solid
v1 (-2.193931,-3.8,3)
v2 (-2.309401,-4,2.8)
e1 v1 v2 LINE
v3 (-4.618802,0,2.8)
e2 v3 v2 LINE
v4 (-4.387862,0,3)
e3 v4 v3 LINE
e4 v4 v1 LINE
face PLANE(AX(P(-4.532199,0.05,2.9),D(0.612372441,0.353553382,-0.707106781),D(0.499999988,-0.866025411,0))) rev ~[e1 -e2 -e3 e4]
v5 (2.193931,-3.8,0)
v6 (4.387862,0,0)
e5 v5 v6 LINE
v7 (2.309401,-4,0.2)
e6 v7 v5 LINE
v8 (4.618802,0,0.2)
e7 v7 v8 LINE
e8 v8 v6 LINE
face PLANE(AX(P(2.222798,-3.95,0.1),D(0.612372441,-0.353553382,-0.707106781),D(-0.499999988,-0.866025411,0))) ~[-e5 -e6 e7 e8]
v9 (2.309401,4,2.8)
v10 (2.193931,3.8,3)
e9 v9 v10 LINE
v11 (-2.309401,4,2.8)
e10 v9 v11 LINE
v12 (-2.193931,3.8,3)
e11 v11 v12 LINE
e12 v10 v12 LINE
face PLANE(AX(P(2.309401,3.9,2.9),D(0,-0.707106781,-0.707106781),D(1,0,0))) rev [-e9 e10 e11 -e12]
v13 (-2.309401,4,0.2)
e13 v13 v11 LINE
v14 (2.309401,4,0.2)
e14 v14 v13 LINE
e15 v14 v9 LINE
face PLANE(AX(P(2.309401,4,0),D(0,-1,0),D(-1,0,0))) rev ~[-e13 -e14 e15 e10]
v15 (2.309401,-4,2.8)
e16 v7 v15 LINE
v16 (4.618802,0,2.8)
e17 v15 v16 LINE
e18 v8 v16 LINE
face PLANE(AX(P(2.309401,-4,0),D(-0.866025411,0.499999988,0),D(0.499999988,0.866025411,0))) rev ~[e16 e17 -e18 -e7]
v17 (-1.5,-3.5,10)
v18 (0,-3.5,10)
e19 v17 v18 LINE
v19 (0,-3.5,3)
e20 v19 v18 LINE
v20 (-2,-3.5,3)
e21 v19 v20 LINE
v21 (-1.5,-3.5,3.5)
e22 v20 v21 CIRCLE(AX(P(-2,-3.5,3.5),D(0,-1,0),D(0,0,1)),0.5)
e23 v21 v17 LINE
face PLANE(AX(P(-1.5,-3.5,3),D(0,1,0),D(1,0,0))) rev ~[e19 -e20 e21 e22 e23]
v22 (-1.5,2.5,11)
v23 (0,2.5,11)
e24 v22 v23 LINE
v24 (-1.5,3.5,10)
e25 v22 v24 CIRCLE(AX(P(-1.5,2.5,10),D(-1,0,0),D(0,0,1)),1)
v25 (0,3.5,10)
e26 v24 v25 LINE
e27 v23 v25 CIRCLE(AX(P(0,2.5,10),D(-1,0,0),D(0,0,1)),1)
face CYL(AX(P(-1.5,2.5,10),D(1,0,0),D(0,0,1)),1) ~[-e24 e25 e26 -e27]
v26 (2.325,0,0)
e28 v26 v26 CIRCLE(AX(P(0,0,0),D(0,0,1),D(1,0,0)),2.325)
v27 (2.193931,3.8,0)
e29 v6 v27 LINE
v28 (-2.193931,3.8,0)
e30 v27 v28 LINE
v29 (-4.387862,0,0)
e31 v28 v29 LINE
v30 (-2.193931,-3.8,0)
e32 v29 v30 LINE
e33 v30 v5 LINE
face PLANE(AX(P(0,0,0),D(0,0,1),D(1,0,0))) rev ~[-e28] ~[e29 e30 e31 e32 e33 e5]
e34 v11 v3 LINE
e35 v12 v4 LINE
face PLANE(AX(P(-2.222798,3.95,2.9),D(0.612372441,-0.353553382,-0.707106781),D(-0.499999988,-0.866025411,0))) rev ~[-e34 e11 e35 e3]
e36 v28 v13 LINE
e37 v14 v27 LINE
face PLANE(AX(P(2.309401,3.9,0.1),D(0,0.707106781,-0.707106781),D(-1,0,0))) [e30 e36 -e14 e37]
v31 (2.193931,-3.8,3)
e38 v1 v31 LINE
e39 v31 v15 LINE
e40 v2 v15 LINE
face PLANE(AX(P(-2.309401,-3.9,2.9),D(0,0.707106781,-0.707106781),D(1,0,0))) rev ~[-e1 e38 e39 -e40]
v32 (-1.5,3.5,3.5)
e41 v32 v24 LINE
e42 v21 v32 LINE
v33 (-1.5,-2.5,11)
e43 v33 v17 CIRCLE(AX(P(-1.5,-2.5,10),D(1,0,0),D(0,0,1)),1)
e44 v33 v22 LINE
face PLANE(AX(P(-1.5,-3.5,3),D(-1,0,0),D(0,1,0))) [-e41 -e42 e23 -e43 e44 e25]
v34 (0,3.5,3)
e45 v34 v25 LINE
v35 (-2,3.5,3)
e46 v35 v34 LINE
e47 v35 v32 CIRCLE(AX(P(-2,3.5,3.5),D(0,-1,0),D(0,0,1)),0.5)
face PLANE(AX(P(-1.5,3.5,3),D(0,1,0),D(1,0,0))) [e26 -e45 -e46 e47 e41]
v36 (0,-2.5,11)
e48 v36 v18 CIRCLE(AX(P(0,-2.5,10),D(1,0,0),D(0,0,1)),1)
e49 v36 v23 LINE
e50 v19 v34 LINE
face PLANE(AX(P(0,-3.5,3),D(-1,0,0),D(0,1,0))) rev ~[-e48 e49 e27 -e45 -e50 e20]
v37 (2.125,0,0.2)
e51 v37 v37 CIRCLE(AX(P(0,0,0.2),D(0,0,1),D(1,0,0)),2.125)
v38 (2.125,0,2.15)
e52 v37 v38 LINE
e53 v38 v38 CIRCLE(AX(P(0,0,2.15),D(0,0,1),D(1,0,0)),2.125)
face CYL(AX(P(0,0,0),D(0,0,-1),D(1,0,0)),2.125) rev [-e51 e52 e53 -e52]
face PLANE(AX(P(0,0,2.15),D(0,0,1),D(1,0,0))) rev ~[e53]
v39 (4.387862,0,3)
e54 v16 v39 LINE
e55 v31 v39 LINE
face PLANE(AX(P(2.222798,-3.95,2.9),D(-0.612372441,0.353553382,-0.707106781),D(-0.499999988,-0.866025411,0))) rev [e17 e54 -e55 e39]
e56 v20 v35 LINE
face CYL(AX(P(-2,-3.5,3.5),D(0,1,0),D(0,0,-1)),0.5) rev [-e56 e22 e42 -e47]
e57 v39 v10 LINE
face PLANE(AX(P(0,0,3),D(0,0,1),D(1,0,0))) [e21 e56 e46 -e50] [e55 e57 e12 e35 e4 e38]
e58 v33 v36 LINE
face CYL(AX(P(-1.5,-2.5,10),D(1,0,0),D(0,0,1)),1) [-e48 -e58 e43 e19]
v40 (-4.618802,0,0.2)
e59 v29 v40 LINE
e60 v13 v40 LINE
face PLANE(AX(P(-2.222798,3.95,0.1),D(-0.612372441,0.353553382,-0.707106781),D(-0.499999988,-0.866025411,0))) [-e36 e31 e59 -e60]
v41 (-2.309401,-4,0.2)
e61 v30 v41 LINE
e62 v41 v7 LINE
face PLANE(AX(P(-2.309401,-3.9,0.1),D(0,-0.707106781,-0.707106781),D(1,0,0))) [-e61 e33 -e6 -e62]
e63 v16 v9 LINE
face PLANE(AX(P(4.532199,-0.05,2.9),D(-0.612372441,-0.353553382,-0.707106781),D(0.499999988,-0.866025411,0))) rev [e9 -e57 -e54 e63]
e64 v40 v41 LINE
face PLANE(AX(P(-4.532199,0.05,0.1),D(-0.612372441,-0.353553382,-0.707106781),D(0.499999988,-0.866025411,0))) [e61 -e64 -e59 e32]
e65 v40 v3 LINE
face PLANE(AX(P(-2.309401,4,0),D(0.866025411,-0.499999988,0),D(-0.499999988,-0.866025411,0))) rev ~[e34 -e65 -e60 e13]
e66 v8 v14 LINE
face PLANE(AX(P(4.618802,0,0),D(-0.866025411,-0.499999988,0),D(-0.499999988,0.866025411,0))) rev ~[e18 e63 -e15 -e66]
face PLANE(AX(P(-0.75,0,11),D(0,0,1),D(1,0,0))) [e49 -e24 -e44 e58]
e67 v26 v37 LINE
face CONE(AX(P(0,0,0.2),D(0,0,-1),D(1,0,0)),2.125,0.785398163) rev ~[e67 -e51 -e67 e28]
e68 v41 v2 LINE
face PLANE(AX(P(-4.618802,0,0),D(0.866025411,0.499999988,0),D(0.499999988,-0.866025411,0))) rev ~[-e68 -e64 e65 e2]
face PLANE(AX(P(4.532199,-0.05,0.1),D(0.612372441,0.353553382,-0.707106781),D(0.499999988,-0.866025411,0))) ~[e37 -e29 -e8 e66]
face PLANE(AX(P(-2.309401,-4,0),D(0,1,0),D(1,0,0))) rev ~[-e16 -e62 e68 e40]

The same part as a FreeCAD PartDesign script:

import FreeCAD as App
import Part
import Sketcher
from FreeCAD import Vector
Q = App.Units.Quantity


def edges_at(feature, points):
    """Names of the edges that pass closest to the given points."""
    edges = feature.Shape.Edges
    near = lambda p: min(range(len(edges)), key=lambda i: edges[i].distToShape(Part.Vertex(*p))[0])
    return sorted({f"Edge{near(p) + 1}" for p in points})


def add_polygon(sketch, points):
    """Adds a closed chain of lines whose ends are joined by coincident constraints."""
    first, n = sketch.GeometryCount, len(points)
    for a, b in zip(points, points[1:] + points[:1]):
        sketch.addGeometry(Part.LineSegment(App.Vector(*a, 0), App.Vector(*b, 0)), False)
    for i in range(n):
        sketch.addConstraint(Sketcher.Constraint("Coincident", first + i, 2, first + (i + 1) % n, 1))

doc = App.newDocument("Part")
body = doc.addObject("PartDesign::Body", "Body")

sketch1 = body.newObject("Sketcher::SketchObject", "Sketch")
sketch1.AttachmentSupport = (doc.getObject("XY_Plane"), [""])
sketch1.MapMode = "FlatFace"
add_polygon(sketch1, [(4.618802, 0), (2.309401, 4), (-2.309401, 4), (-4.618802, 0), (-2.309401, -4), (2.309401, -4)])
sketch1.addConstraint([
    Sketcher.Constraint("Horizontal", 1),
    Sketcher.Constraint("Horizontal", 4),
    Sketcher.Constraint("Symmetric", 0, 2, 3, 2, -1, 1),
    Sketcher.Constraint("Symmetric", 2, 2, 5, 2, -1, 1),
    Sketcher.Constraint("PointOnObject", 2, 2, -1),
    Sketcher.Constraint("Parallel", 2, 5),
    Sketcher.Constraint("Vertical", 1, 2, 3, 2),
    Sketcher.Constraint("Angle", 0, Q("119.999999 deg")),
    Sketcher.Constraint("DistanceY", -1, 1, 0, 2, 4.0),
    Sketcher.Constraint("DistanceX", 1, 2, 1, 1, 4.618802),
])
pad1 = body.newObject("PartDesign::Pad", "Pad")
pad1.Profile = sketch1
pad1.Length = 3

sketch2 = body.newObject("Sketcher::SketchObject", "Sketch001")
sketch2.AttachmentSupport = (doc.getObject("XY_Plane"), [""])
sketch2.MapMode = "FlatFace"
sketch2.addGeometry(Part.Circle(Vector(0, 0, 0), Vector(0, 0, 1), 2.125), False)
sketch2.addConstraint([
    Sketcher.Constraint("Coincident", 0, 3, -1, 1),
    Sketcher.Constraint("Diameter", 0, 4.25),
])
pocket1 = body.newObject("PartDesign::Pocket", "Pocket")
pocket1.Profile = sketch2
pocket1.Length = 2.15
pocket1.Reversed = True
doc.recompute()

chamfer = body.newObject("PartDesign::Chamfer", "Chamfer")
chamfer.Base = (pocket1, edges_at(pocket1, [
    (3.464, 2, 3),
    (0, 4, 3),
    (-3.464, 2, 3),
    (-3.464, -2, 3),
    (0, -4, 3),
    (3.464, -2, 3),
]))
chamfer.Size = 0.2
doc.recompute()

chamfer2 = body.newObject("PartDesign::Chamfer", "Chamfer001")
chamfer2.Base = (chamfer, edges_at(chamfer, [
    (3.464, 2, 0),
    (3.464, -2, 0),
    (0, 4, 0),
    (0, -4, 0),
    (-3.464, 2, 0),
    (-3.464, -2, 0),
    (-2.125, 0, 0),
]))
chamfer2.Size = 0.2

sketch3 = body.newObject("Sketcher::SketchObject", "Sketch002")
sketch3.AttachmentSupport = (doc.getObject("XY_Plane"), [""])
sketch3.MapMode = "FlatFace"
sketch3.AttachmentOffset = App.Placement(Vector(0, 0, 3), App.Rotation())
add_polygon(sketch3, [(-1.5, 3.5), (-1.5, -3.5), (0, -3.5), (0, 3.5)])
sketch3.addConstraint([
    Sketcher.Constraint("Vertical", 0),
    Sketcher.Constraint("Horizontal", 1),
    Sketcher.Constraint("Vertical", 2),
    Sketcher.Constraint("Horizontal", 3),
    Sketcher.Constraint("Symmetric", 1, 2, 2, 2, -1, 1),
    Sketcher.Constraint("DistanceY", 0, 2, 0, 1, 7.0),
    Sketcher.Constraint("DistanceX", 1, 1, 1, 2, 1.5),
])
pad2 = body.newObject("PartDesign::Pad", "Pad001")
pad2.Profile = sketch3
pad2.Length = 8
doc.recompute()

fillet = body.newObject("PartDesign::Fillet", "Fillet")
fillet.Base = (pad2, edges_at(pad2, [(-1.5, 0, 3)]))
fillet.Radius = 0.5
doc.recompute()

fillet2 = body.newObject("PartDesign::Fillet", "Fillet001")
fillet2.Base = (fillet, edges_at(fillet, [(-0.75, -3.5, 11), (-0.75, 3.5, 11)]))
fillet2.Radius = 1

doc.recompute()
